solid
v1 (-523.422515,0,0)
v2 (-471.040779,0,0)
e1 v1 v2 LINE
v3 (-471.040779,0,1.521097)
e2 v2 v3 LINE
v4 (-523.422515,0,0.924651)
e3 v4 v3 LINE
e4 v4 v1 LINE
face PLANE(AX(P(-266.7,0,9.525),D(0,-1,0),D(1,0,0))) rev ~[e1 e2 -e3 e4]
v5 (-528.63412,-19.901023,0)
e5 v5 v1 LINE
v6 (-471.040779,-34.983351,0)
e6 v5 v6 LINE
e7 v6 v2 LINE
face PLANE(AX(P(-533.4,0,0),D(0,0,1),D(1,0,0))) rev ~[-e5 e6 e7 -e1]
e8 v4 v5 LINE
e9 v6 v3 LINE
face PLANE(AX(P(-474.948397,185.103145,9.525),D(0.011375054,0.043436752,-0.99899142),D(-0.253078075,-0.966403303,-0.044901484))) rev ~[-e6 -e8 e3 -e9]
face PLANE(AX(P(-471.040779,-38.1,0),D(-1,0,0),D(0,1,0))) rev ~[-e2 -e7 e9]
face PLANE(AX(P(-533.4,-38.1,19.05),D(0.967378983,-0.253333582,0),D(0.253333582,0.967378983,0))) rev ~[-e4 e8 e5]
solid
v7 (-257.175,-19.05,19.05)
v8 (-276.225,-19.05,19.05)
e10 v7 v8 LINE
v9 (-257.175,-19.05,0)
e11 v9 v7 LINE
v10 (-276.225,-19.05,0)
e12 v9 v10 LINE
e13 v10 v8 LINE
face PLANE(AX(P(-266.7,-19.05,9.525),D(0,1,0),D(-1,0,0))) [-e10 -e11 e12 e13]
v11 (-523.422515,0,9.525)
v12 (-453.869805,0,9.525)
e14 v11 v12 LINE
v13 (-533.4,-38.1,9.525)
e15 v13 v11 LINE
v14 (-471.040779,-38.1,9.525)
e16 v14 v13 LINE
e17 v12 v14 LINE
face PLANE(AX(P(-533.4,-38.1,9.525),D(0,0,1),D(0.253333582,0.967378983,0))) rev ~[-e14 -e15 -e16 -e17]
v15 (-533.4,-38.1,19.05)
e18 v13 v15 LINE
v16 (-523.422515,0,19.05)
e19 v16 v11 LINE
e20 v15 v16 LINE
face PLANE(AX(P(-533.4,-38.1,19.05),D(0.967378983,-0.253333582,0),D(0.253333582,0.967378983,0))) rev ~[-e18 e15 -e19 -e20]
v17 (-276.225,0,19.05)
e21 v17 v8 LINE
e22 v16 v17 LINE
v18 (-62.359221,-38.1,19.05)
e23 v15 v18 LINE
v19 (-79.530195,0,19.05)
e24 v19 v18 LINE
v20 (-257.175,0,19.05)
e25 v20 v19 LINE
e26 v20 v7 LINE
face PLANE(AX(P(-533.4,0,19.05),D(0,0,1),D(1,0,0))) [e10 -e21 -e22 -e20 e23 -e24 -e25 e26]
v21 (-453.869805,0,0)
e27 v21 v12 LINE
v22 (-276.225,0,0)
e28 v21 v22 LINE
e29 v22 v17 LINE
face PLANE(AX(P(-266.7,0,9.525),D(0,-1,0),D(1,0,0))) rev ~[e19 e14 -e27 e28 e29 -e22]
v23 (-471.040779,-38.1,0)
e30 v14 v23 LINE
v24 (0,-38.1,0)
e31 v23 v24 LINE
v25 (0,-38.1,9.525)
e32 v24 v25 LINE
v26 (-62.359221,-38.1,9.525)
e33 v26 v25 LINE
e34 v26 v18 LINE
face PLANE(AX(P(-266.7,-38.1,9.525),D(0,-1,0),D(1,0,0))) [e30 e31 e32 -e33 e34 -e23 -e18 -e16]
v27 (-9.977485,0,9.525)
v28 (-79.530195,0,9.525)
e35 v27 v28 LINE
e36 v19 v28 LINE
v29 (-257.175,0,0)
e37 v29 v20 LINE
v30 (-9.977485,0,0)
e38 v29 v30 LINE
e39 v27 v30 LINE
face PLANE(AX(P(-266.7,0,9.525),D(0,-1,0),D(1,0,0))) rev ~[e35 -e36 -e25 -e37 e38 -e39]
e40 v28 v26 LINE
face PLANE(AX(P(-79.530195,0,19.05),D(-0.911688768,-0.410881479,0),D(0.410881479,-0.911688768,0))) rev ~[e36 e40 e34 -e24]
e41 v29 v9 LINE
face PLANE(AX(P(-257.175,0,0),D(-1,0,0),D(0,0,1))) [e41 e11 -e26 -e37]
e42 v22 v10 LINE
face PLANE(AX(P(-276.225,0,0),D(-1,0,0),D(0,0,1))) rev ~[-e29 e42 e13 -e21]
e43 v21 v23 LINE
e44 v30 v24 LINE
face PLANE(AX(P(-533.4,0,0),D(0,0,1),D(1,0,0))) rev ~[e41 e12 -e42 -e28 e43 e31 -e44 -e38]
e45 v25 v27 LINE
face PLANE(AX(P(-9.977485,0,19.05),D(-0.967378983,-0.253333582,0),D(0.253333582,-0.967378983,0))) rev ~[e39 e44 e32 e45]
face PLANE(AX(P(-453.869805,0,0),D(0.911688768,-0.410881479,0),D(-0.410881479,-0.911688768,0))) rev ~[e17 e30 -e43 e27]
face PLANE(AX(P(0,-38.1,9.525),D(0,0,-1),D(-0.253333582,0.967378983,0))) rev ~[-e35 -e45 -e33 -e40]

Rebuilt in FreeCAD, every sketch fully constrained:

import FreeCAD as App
import Part
import Sketcher
from FreeCAD import Vector
Q = App.Units.Quantity


def add_polygon(sketch, points):
    """Adds a closed chain of lines whose ends are joined by coincident constraints."""
    first, n = sketch.GeometryCount, len(points)
    for a, b in zip(points, points[1:] + points[:1]):
        sketch.addGeometry(Part.LineSegment(App.Vector(*a, 0), App.Vector(*b, 0)), False)
    for i in range(n):
        sketch.addConstraint(Sketcher.Constraint("Coincident", first + i, 2, first + (i + 1) % n, 1))

doc = App.newDocument("Part")
params = doc.addObject("Spreadsheet::Sheet", "Params")
for row, (alias, value) in enumerate([
    ("sketch1_width", "21 in"),
    ("sketch1_height", "0.75 in"),
    ("pad1_length", "1.5 in"),
    ("sketch2_height", "1.5 in"),
    ("pocket1_length", "2 in"),
    ("sketch3_height", "1.5 in"),
    ("pocket2_length", "3 in"),
    ("sketch4_height", "0.375 in"),
    ("pocket3_length", "2.375 in"),
    ("sketch5_height", "1.5 in"),
    ("pocket4_length", "0.375 in"),
    ("sketch6_height", "0.375 in"),
    ("pocket5_length", "2.375 in"),
    ("sketch7_width", "0.75 in"),
    ("pocket6_length", "0.75 in"),
    ("sketch8_height", "1.5 in"),
    ("pocket7_length", "0.375 in"),
], start=1):
    params.set(f"A{row}", alias)
    params.set(f"B{row}", "=" + value)
    params.setAlias(f"B{row}", alias)

body = doc.addObject("PartDesign::Body", "Body")
body.AllowCompound = True

# Sketch on XZ plane
sketch1 = doc.addObject("Sketcher::SketchObject", "Sketch")
body.addObject(sketch1)
sketch1.AttachmentSupport = (doc.XZ_Plane, [""])
sketch1.MapMode = "FlatFace"
add_polygon(sketch1, [(-533, 19), (-533, 0), (0, 0), (0, 19)])  # lines 0-3
sketch1.addConstraint(Sketcher.Constraint("Vertical", 0))
sketch1.addConstraint(Sketcher.Constraint("Horizontal", 1))
sketch1.addConstraint(Sketcher.Constraint("Vertical", 2))
sketch1.addConstraint(Sketcher.Constraint("Horizontal", 3))
sketch1.addConstraint(Sketcher.Constraint("Coincident", 1, 2, -1, 1))
sketch1.addConstraint(Sketcher.Constraint("DistanceX", 1, 1, 1, 2, Q("21 in")))
sketch1.addConstraint(Sketcher.Constraint("DistanceY", 0, 2, 0, 1, Q("0.75 in")))
sketch1.setExpression("Constraints[9]", "Params.sketch1_width")
sketch1.setExpression("Constraints[10]", "Params.sketch1_height")
pad1 = doc.addObject("PartDesign::Pad", "Pad")
body.addObject(pad1)
pad1.Profile = sketch1
pad1.setExpression("Length", "Params.pad1_length")

# Sketch on XY plane
sketch2 = doc.addObject("Sketcher::SketchObject", "Sketch001")
body.addObject(sketch2)
sketch2.AttachmentSupport = (doc.XY_Plane, [""])
sketch2.MapMode = "FlatFace"
sketch2.AttachmentOffset = App.Placement(Vector(0, 0, 0.75 * 25.4), App.Rotation())
add_polygon(sketch2, [(-533, 0), (-533, -38), (-523, 0)])  # lines 0-2
sketch2.addConstraint(Sketcher.Constraint("Vertical", 0))
sketch2.addConstraint(Sketcher.Constraint("Horizontal", 2))
sketch2.addConstraint(Sketcher.Constraint("PointOnObject", 1, 2, -1))
sketch2.addConstraint(Sketcher.Constraint("DistanceY", 0, 2, 0, 1, Q("1.5 in")))
sketch2.addConstraint(Sketcher.Constraint("DistanceX", 0, 2, -1, 1, Q("21 in")))
sketch2.addConstraint(Sketcher.Constraint("Distance", 1, Q("39.384771 mm")))
sketch2.setExpression("Constraints[6]", "Params.sketch2_height")
pocket1 = doc.addObject("PartDesign::Pocket", "Pocket")
body.addObject(pocket1)
pocket1.Profile = sketch2
pocket1.setExpression("Length", "Params.pocket1_length")

# Sketch on XY plane
sketch3 = doc.addObject("Sketcher::SketchObject", "Sketch002")
body.addObject(sketch3)
sketch3.AttachmentSupport = (doc.XY_Plane, [""])
sketch3.MapMode = "FlatFace"
sketch3.AttachmentOffset = App.Placement(Vector(0, 0, 0.75 * 25.4), App.Rotation())
add_polygon(sketch3, [(-10, 0), (0, -38), (0, 0)])  # lines 0-2
sketch3.addConstraint(Sketcher.Constraint("Vertical", 1))
sketch3.addConstraint(Sketcher.Constraint("Horizontal", 2))
sketch3.addConstraint(Sketcher.Constraint("Coincident", 1, 2, -1, 1))
sketch3.addConstraint(Sketcher.Constraint("DistanceY", 1, 1, 1, 2, Q("1.5 in")))
sketch3.addConstraint(Sketcher.Constraint("Distance", 0, Q("39.384771 mm")))
sketch3.setExpression("Constraints[6]", "Params.sketch3_height")
pocket2 = doc.addObject("PartDesign::Pocket", "Pocket001")
body.addObject(pocket2)
pocket2.Profile = sketch3
pocket2.setExpression("Length", "Params.pocket2_length")

# Sketch on an angled plane
sketch4 = doc.addObject("Sketcher::SketchObject", "Sketch003")
body.addObject(sketch4)
sketch4.Placement = App.Placement(Vector(-489.830355, 128.274938, 0), App.Rotation(Vector(-0.253333583, -0.967378983, 0), Vector(0, 0, 1.000000001), Vector(-0.967378983, 0.253333583, 0), "ZXY"))
add_polygon(sketch4, [(-59, 10), (153, 0), (172, 0), (172, 10)])  # lines 0-3
sketch4.addConstraint(Sketcher.Constraint("Horizontal", 1))
sketch4.addConstraint(Sketcher.Constraint("Vertical", 2))
sketch4.addConstraint(Sketcher.Constraint("Horizontal", 3))
sketch4.addConstraint(Sketcher.Constraint("PointOnObject", 0, 2, -1))
sketch4.addConstraint(Sketcher.Constraint("DistanceY", 2, 1, 2, 2, Q("0.375 in")))
sketch4.addConstraint(Sketcher.Constraint("Distance", 0, Q("212.131072 mm")))
sketch4.addConstraint(Sketcher.Constraint("DistanceX", 1, 1, 1, 2, Q("18.812665 mm")))
sketch4.addConstraint(Sketcher.Constraint("DistanceX", -1, 1, 0, 2, Q("153.172607 mm")))
sketch4.setExpression("Constraints[8]", "Params.sketch4_height")
pocket3 = doc.addObject("PartDesign::Pocket", "Pocket002")
body.addObject(pocket3)
pocket3.Profile = sketch4
pocket3.setExpression("Length", "Params.pocket3_length")

# Sketch on XY plane
sketch5 = doc.addObject("Sketcher::SketchObject", "Sketch004")
body.addObject(sketch5)
sketch5.AttachmentSupport = (doc.XY_Plane, [""])
sketch5.MapMode = "FlatFace"
add_polygon(sketch5, [(-471, -38), (-471, 0), (-454, 0)])  # lines 0-2
sketch5.addConstraint(Sketcher.Constraint("Vertical", 0))
sketch5.addConstraint(Sketcher.Constraint("Horizontal", 1))
sketch5.addConstraint(Sketcher.Constraint("PointOnObject", 0, 2, -1))
sketch5.addConstraint(Sketcher.Constraint("DistanceY", 0, 1, 0, 2, Q("1.5 in")))
sketch5.addConstraint(Sketcher.Constraint("DistanceX", 1, 1, 1, 2, Q("17.170974 mm")))
sketch5.addConstraint(Sketcher.Constraint("DistanceX", 0, 2, -1, 1, Q("471.040779 mm")))
sketch5.setExpression("Constraints[6]", "Params.sketch5_height")
pocket4 = doc.addObject("PartDesign::Pocket", "Pocket003")
body.addObject(pocket4)
pocket4.Profile = sketch5
pocket4.setExpression("Length", "Params.pocket4_length")
pocket4.Reversed = True

# Sketch on an angled plane
sketch6 = doc.addObject("Sketcher::SketchObject", "Sketch005")
body.addObject(sketch6)
sketch6.Placement = App.Placement(Vector(-9.337151, -2.445178, 0), App.Rotation(Vector(-0.253333583, 0.967378983, 0), Vector(0, 0, 1.000000001), Vector(0.967378983, 0.253333583, 0), "ZXY"))
add_polygon(sketch6, [(-37, 19), (-37, 10), (45, 10), (46, 19)])  # lines 0-3
sketch6.addConstraint(Sketcher.Constraint("Vertical", 0))
sketch6.addConstraint(Sketcher.Constraint("Horizontal", 1))
sketch6.addConstraint(Sketcher.Constraint("Horizontal", 3))
sketch6.addConstraint(Sketcher.Constraint("DistanceY", 0, 2, 0, 1, Q("0.375 in")))
sketch6.addConstraint(Sketcher.Constraint("DistanceY", -1, 1, 2, 2, Q("0.75 in")))
sketch6.addConstraint(Sketcher.Constraint("DistanceX", 1, 1, 1, 2, Q("82.12909 mm")))
sketch6.addConstraint(Sketcher.Constraint("DistanceX", 3, 2, 3, 1, Q("82.490064 mm")))
sketch6.addConstraint(Sketcher.Constraint("DistanceX", 0, 2, -1, 1, Q("36.857139 mm")))
sketch6.setExpression("Constraints[7]", "Params.sketch6_height")
pocket5 = doc.addObject("PartDesign::Pocket", "Pocket004")
body.addObject(pocket5)
pocket5.Profile = sketch6
pocket5.setExpression("Length", "Params.pocket5_length")

# Sketch on XZ plane
sketch7 = doc.addObject("Sketcher::SketchObject", "Sketch006")
body.addObject(sketch7)
sketch7.AttachmentSupport = (doc.XZ_Plane, [""])
sketch7.MapMode = "FlatFace"
add_polygon(sketch7, [(-257, 19), (-257, 0), (-276, 0), (-276, 19)])  # lines 0-3
sketch7.addConstraint(Sketcher.Constraint("Vertical", 0))
sketch7.addConstraint(Sketcher.Constraint("Horizontal", 1))
sketch7.addConstraint(Sketcher.Constraint("Vertical", 2))
sketch7.addConstraint(Sketcher.Constraint("Horizontal", 3))
sketch7.addConstraint(Sketcher.Constraint("PointOnObject", 0, 2, -1))
sketch7.addConstraint(Sketcher.Constraint("Equal", 3, 0))
sketch7.addConstraint(Sketcher.Constraint("DistanceX", 1, 2, 1, 1, Q("0.75 in")))
sketch7.addConstraint(Sketcher.Constraint("DistanceX", 0, 2, -1, 1, Q("10.125 in")))
sketch7.setExpression("Constraints[10]", "Params.sketch7_width")
pocket6 = doc.addObject("PartDesign::Pocket", "Pocket005")
body.addObject(pocket6)
pocket6.Profile = sketch7
pocket6.setExpression("Length", "Params.pocket6_length")
pocket6.Reversed = True

# Sketch on XY plane
sketch8 = doc.addObject("Sketcher::SketchObject", "Sketch007")
body.addObject(sketch8)
sketch8.AttachmentSupport = (doc.XY_Plane, [""])
sketch8.MapMode = "FlatFace"
sketch8.AttachmentOffset = App.Placement(Vector(0, 0, 0.75 * 25.4), App.Rotation())
add_polygon(sketch8, [(-62, 0), (-80, 0), (-62, -38)])  # lines 0-2
sketch8.addConstraint(Sketcher.Constraint("Horizontal", 0))
sketch8.addConstraint(Sketcher.Constraint("Vertical", 2))
sketch8.addConstraint(Sketcher.Constraint("PointOnObject", 0, 2, -1))
sketch8.addConstraint(Sketcher.Constraint("DistanceY", 2, 1, 2, 2, Q("1.5 in")))
sketch8.addConstraint(Sketcher.Constraint("DistanceX", 0, 2, 0, 1, Q("17.170974 mm")))
sketch8.addConstraint(Sketcher.Constraint("DistanceX", 1, 2, -1, 1, Q("62.359221 mm")))
sketch8.setExpression("Constraints[6]", "Params.sketch8_height")
pocket7 = doc.addObject("PartDesign::Pocket", "Pocket006")
body.addObject(pocket7)
pocket7.Profile = sketch8
pocket7.setExpression("Length", "Params.pocket7_length")

doc.recompute()
